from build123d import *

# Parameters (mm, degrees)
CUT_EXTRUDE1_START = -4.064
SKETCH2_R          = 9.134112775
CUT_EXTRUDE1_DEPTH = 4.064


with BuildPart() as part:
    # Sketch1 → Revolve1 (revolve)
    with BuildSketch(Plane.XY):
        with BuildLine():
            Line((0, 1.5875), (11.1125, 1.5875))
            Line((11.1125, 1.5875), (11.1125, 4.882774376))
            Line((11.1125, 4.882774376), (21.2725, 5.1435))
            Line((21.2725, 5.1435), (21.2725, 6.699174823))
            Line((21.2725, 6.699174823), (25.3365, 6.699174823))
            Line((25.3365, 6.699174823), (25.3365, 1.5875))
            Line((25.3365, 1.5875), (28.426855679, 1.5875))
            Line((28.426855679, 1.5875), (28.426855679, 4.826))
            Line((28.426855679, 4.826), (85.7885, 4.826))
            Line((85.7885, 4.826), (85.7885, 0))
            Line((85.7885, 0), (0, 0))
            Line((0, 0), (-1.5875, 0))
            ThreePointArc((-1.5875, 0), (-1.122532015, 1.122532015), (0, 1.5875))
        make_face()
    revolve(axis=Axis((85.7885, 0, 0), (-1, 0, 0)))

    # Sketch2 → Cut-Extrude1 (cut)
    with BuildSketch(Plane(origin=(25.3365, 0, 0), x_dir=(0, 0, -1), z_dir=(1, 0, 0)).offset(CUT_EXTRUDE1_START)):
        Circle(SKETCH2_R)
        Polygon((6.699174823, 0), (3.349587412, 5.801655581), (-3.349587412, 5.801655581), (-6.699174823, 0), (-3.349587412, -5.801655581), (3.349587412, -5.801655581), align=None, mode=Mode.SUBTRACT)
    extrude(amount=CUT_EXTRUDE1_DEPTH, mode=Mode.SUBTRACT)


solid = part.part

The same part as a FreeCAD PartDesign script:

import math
import FreeCAD as App
import Part
import Sketcher
from FreeCAD import Vector
Q = App.Units.Quantity


def add_polygon(sketch, points):
    """Adds a closed chain of lines whose ends are joined by coincident constraints."""
    first, n = sketch.GeometryCount, len(points)
    for a, b in zip(points, points[1:] + points[:1]):
        sketch.addGeometry(Part.LineSegment(App.Vector(*a, 0), App.Vector(*b, 0)), False)
    for i in range(n):
        sketch.addConstraint(Sketcher.Constraint("Coincident", first + i, 2, first + (i + 1) % n, 1))

doc = App.newDocument("Part")
body = doc.addObject("PartDesign::Body", "Body")

sketch1 = body.newObject("Sketcher::SketchObject", "Sketch")
sketch1.AttachmentSupport = (doc.getObject("XY_Plane"), [""])
sketch1.MapMode = "FlatFace"
sketch1.addGeometry([
    Part.LineSegment(Vector(11.1, 1.6, 0), Vector(0, 1.6, 0)),
    Part.ArcOfCircle(Part.Circle(Vector(0, 0, 0), Vector(0, 0, 1), 1.6), math.radians(90), math.radians(180)),
    Part.LineSegment(Vector(-1.6, 0, 0), Vector(85.8, 0, 0)),
    Part.LineSegment(Vector(85.8, 0, 0), Vector(85.8, 4.8, 0)),
    Part.LineSegment(Vector(85.8, 4.8, 0), Vector(28.4, 4.8, 0)),
    Part.LineSegment(Vector(28.4, 4.8, 0), Vector(28.4, 1.6, 0)),
    Part.LineSegment(Vector(28.4, 1.6, 0), Vector(25.3, 1.6, 0)),
    Part.LineSegment(Vector(25.3, 1.6, 0), Vector(25.3, 6.7, 0)),
    Part.LineSegment(Vector(25.3, 6.7, 0), Vector(21.3, 6.7, 0)),
    Part.LineSegment(Vector(21.3, 6.7, 0), Vector(21.3, 5.1, 0)),
    Part.LineSegment(Vector(21.3, 5.1, 0), Vector(11.1, 4.9, 0)),
    Part.LineSegment(Vector(11.1, 4.9, 0), Vector(11.1, 1.6, 0)),
], False)
sketch1.addConstraint([
    Sketcher.Constraint("Tangent", 0, 2, 1, 1),
    Sketcher.Constraint("Coincident", 1, 2, 2, 1),
    Sketcher.Constraint("Coincident", 2, 2, 3, 1),
    Sketcher.Constraint("Coincident", 3, 2, 4, 1),
    Sketcher.Constraint("Coincident", 4, 2, 5, 1),
    Sketcher.Constraint("Coincident", 5, 2, 6, 1),
    Sketcher.Constraint("Coincident", 6, 2, 7, 1),
    Sketcher.Constraint("Coincident", 7, 2, 8, 1),
    Sketcher.Constraint("Coincident", 8, 2, 9, 1),
    Sketcher.Constraint("Coincident", 9, 2, 10, 1),
    Sketcher.Constraint("Coincident", 10, 2, 11, 1),
    Sketcher.Constraint("Coincident", 11, 2, 0, 1),
    Sketcher.Constraint("Horizontal", 0),
    Sketcher.Constraint("Horizontal", 2),
    Sketcher.Constraint("Vertical", 3),
    Sketcher.Constraint("Horizontal", 4),
    Sketcher.Constraint("Vertical", 5),
    Sketcher.Constraint("Horizontal", 6),
    Sketcher.Constraint("Vertical", 7),
    Sketcher.Constraint("Horizontal", 8),
    Sketcher.Constraint("Vertical", 9),
    Sketcher.Constraint("Vertical", 11),
    Sketcher.Constraint("Coincident", 1, 3, -1, 1),
    Sketcher.Constraint("PointOnObject", 1, 2, -1),
    Sketcher.Constraint("Horizontal", 0, 2, 5, 2),
    Sketcher.Constraint("Radius", 1, Q("0.0625 in")),
    Sketcher.Constraint("DistanceX", 2, 1, 2, 2, Q("3.44 in")),
    Sketcher.Constraint("DistanceX", 8, 2, 8, 1, Q("0.16 in")),
    Sketcher.Constraint("DistanceY", 3, 1, 3, 2, Q("0.19 in")),
    Sketcher.Constraint("DistanceX", 10, 2, 9, 2, Q("0.4 in")),
    Sketcher.Constraint("DistanceX", 1, 2, 10, 2, Q("0.5 in")),
    Sketcher.Constraint("Angle", 10, Q("-178.53 deg")),
    Sketcher.Constraint("DistanceY", 6, 2, 9, 2, Q("0.14 in")),
    Sketcher.Constraint("DistanceY", 10, 2, 8, 2, 1.8164),
    Sketcher.Constraint("DistanceX", 4, 2, 4, 1, 57.361644),
])
revolution = body.newObject("PartDesign::Revolution", "Revolution")
revolution.Profile = sketch1
revolution.ReferenceAxis = (sketch1, ["H_Axis"])
revolution.Angle = 360

sketch2 = body.newObject("Sketcher::SketchObject", "Sketch001")
sketch2.AttachmentSupport = (doc.getObject("YZ_Plane"), [""])
sketch2.MapMode = "FlatFace"
sketch2.AttachmentOffset = App.Placement(Vector(0, 0, 0.8375 * 25.4), App.Rotation())
sketch2.addGeometry(Part.Circle(Vector(0, 0, 0), Vector(0, 0, 1), 9), False)
add_polygon(sketch2, [(6, -3), (0, -7), (-6, -3), (-6, 3), (0, 7), (6, 3)])
sketch2.addConstraint([
    Sketcher.Constraint("Vertical", 3),
    Sketcher.Constraint("Vertical", 6),
    Sketcher.Constraint("Coincident", 0, 3, -1, 1),
    Sketcher.Constraint("Symmetric", 1, 2, 4, 2, -1, 1),
    Sketcher.Constraint("Symmetric", 2, 2, 5, 2, -1, 1),
    Sketcher.Constraint("PointOnObject", 1, 2, -2),
    Sketcher.Constraint("Parallel", 1, 4),
    Sketcher.Constraint("Horizontal", 3, 2, 5, 2),
    Sketcher.Constraint("Angle", 1, Q("-150 deg")),
    Sketcher.Constraint("Diameter", 0, 18.268226),
    Sketcher.Constraint("DistanceY", 3, 1, 3, 2, 6.699175),
    Sketcher.Constraint("DistanceY", 1, 2, 4, 2, 13.39835),
])
pocket1 = body.newObject("PartDesign::Pocket", "Pocket")
pocket1.Profile = sketch2
pocket1.Length = Q("0.16 in")
pocket1.Reversed = True

doc.recompute()
